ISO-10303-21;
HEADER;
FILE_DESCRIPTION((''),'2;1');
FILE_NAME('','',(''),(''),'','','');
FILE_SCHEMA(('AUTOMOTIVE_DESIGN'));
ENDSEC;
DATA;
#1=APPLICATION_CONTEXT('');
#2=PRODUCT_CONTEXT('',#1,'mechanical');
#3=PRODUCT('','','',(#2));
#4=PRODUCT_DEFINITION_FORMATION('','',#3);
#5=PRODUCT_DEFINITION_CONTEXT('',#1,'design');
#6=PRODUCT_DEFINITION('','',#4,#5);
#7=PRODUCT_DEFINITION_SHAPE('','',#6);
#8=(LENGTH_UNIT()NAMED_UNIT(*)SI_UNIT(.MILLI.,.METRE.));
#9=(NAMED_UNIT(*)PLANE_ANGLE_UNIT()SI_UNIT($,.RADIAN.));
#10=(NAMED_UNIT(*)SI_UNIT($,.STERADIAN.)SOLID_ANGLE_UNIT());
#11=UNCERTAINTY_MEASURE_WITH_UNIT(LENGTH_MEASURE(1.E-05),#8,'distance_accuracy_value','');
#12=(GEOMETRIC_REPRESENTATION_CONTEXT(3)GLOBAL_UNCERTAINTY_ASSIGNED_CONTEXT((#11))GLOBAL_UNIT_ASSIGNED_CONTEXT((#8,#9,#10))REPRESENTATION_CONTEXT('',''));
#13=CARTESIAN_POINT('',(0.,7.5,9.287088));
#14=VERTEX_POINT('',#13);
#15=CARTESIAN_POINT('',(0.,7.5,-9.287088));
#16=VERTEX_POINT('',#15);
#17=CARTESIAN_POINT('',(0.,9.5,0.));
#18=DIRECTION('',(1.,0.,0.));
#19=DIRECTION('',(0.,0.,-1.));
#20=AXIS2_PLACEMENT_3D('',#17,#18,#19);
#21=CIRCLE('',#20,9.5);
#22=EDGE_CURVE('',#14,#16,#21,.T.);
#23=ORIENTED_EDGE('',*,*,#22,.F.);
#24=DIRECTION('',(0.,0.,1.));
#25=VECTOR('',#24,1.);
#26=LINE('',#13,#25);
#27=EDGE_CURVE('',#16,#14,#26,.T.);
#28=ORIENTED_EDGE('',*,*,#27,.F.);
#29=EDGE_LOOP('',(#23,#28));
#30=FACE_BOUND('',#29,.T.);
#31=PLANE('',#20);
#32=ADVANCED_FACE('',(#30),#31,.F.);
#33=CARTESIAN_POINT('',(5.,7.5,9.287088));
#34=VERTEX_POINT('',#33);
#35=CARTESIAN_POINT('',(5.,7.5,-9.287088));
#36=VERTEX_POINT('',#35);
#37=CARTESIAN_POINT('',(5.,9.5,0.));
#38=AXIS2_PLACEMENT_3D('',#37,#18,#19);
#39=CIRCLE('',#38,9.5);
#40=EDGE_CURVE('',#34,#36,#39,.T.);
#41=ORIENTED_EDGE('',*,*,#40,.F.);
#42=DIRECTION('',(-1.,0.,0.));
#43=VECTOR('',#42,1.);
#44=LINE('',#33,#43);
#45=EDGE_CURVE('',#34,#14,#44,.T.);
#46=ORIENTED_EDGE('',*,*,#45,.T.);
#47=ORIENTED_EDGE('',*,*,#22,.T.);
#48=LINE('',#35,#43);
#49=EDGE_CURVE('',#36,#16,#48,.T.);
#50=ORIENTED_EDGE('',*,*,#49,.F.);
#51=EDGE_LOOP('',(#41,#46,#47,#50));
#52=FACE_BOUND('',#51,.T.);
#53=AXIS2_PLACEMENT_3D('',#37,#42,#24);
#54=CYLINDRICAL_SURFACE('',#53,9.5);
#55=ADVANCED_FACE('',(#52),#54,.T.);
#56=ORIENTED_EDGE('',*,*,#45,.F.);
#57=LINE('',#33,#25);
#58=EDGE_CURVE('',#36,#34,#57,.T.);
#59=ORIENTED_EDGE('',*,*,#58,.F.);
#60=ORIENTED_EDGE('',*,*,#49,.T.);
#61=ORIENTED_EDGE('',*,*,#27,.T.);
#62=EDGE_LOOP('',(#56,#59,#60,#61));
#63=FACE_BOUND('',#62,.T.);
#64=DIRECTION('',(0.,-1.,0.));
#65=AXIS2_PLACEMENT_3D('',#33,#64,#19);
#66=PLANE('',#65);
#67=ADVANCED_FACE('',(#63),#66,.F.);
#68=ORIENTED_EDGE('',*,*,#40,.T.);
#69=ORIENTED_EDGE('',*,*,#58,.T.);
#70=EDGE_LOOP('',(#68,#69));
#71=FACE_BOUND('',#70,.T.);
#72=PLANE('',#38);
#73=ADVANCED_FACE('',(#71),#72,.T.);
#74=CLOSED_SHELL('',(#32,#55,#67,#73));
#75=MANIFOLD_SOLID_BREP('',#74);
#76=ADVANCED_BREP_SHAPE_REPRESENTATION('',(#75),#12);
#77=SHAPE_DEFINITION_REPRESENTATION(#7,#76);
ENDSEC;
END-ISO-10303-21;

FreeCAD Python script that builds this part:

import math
import FreeCAD as App
import Part
import Sketcher
from FreeCAD import Vector

doc = App.newDocument("Part")
body = doc.addObject("PartDesign::Body", "Body")

# Sketch on YZ plane
sketch1 = body.newObject("Sketcher::SketchObject", "Sketch")
sketch1.AttachmentSupport = (doc.getObject("YZ_Plane"), [""])
sketch1.MapMode = "FlatFace"
sketch1.addGeometry(Part.LineSegment(Vector(7.5, -9.287088, 0), Vector(7.5, 9.287088, 0)), False)
sketch1.addGeometry(Part.ArcOfCircle(Part.Circle(Vector(9.5, 0, 0), Vector(0, 0, 1), 9.5), math.radians(102.153197), math.radians(257.846803)), False)
sketch1.addConstraint(Sketcher.Constraint("Coincident", 0, 1, 1, 2))
sketch1.addConstraint(Sketcher.Constraint("Coincident", 1, 1, 0, 2))
sketch1.addConstraint(Sketcher.Constraint("Vertical", 0))
sketch1.addConstraint(Sketcher.Constraint("PointOnObject", 1, 3, -1))
sketch1.addConstraint(Sketcher.Constraint("Radius", 1, 9.5))
sketch1.addConstraint(Sketcher.Constraint("DistanceX", 0, 1, 1, 3, 2.0))
sketch1.addConstraint(Sketcher.Constraint("DistanceX", -1, 1, 1, 3, 9.5))
pad1 = body.newObject("PartDesign::Pad", "Pad")
pad1.Profile = sketch1
pad1.Length = 5

doc.recompute()
